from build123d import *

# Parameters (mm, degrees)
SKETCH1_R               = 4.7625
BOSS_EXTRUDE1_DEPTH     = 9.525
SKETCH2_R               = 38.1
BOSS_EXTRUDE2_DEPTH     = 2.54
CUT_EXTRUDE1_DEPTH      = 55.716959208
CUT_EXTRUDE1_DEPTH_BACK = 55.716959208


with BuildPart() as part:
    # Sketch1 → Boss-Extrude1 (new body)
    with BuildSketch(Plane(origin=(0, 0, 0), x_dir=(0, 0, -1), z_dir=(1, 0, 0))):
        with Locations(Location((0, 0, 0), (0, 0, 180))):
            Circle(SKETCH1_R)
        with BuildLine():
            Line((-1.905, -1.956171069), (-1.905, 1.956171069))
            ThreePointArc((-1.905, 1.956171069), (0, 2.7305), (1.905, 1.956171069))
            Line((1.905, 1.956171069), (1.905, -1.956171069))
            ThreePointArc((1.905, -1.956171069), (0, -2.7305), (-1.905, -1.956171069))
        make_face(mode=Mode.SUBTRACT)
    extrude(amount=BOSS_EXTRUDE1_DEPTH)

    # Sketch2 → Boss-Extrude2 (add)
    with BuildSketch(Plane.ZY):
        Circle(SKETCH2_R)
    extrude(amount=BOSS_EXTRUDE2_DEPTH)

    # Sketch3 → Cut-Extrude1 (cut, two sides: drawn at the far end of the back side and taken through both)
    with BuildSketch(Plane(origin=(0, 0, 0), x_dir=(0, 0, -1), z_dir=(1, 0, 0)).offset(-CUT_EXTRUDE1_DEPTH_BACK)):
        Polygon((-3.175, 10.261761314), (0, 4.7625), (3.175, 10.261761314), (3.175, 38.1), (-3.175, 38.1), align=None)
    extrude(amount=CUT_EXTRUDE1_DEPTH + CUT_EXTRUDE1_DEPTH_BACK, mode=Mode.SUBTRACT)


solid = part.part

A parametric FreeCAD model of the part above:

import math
import FreeCAD as App
import Part
import Sketcher
Q = App.Units.Quantity


def add_polygon(sketch, points):
    """Adds a closed chain of lines whose ends are joined by coincident constraints."""
    first, n = sketch.GeometryCount, len(points)
    for a, b in zip(points, points[1:] + points[:1]):
        sketch.addGeometry(Part.LineSegment(App.Vector(*a, 0), App.Vector(*b, 0)), False)
    for i in range(n):
        sketch.addConstraint(Sketcher.Constraint("Coincident", first + i, 2, first + (i + 1) % n, 1))

doc = App.newDocument("Part")
body = doc.addObject("PartDesign::Body", "Body")

# Sketch on YZ plane
sketch1 = doc.addObject("Sketcher::SketchObject", "Sketch")
body.addObject(sketch1)
sketch1.AttachmentSupport = (doc.YZ_Plane, [""])
sketch1.MapMode = "FlatFace"
sketch1.addGeometry([
    Part.Circle(App.Vector(0, 0, 0), App.Vector(0, 0, 1), 4.8),  # 0
    Part.ArcOfCircle(Part.Circle(App.Vector(0, 0, 0), App.Vector(0, 0, 1), 2.7), math.radians(136), math.radians(224)),  # 1
    Part.LineSegment(App.Vector(-2, 1.9, 0), App.Vector(2, 1.9, 0)),  # 2
    Part.ArcOfCircle(Part.Circle(App.Vector(0, 0, 0), App.Vector(0, 0, 1), 2.7), math.radians(-44), math.radians(44)),  # 3
    Part.LineSegment(App.Vector(2, -1.9, 0), App.Vector(-2, -1.9, 0)),  # 4
], False)
sketch1.addConstraint([
    Sketcher.Constraint("Coincident", 1, 1, 2, 1),
    Sketcher.Constraint("Coincident", 2, 2, 3, 2),
    Sketcher.Constraint("Coincident", 3, 1, 4, 1),
    Sketcher.Constraint("Coincident", 4, 2, 1, 2),
    Sketcher.Constraint("Horizontal", 2),
    Sketcher.Constraint("Horizontal", 4),
    Sketcher.Constraint("Coincident", 0, 3, -1, 1),
    Sketcher.Constraint("Coincident", 1, 3, -1, 1),
    Sketcher.Constraint("Coincident", 3, 3, -1, 1),
    Sketcher.Constraint("Equal", 1, 3),
    Sketcher.Constraint("Vertical", 2, 2, 3, 1),
    Sketcher.Constraint("Diameter", 0, Q("0.375 in")),
    Sketcher.Constraint("Radius", 1, Q("0.1075 in")),
    Sketcher.Constraint("DistanceY", 3, 1, 2, 2, Q("0.15 in")),
])
pad1 = doc.addObject("PartDesign::Pad", "Pad")
body.addObject(pad1)
pad1.Profile = sketch1
pad1.Length = Q("0.375 in")

# Sketch on YZ plane
sketch2 = doc.addObject("Sketcher::SketchObject", "Sketch001")
body.addObject(sketch2)
sketch2.AttachmentSupport = (doc.YZ_Plane, [""])
sketch2.MapMode = "FlatFace"
sketch2.addGeometry(Part.Circle(App.Vector(0, 0, 0), App.Vector(0, 0, 1), 38), False)
sketch2.addConstraint([
    Sketcher.Constraint("Coincident", 0, 3, -1, 1),
    Sketcher.Constraint("Diameter", 0, Q("3 in")),
])
pad2 = doc.addObject("PartDesign::Pad", "Pad001")
body.addObject(pad2)
pad2.Profile = sketch2
pad2.Length = Q("0.1 in")
pad2.Reversed = True

# Sketch on YZ plane
sketch3 = doc.addObject("Sketcher::SketchObject", "Sketch002")
body.addObject(sketch3)
sketch3.AttachmentSupport = (doc.YZ_Plane, [""])
sketch3.MapMode = "FlatFace"
add_polygon(sketch3, [(10, 3), (5, 0), (10, -3), (38, -3), (38, 3)])  # lines 0-4
sketch3.addConstraint([
    Sketcher.Constraint("Horizontal", 2),
    Sketcher.Constraint("Vertical", 3),
    Sketcher.Constraint("Horizontal", 4),
    Sketcher.Constraint("Symmetric", 1, 2, 4, 2, -1),
    Sketcher.Constraint("PointOnObject", 0, 2, -1),
    Sketcher.Constraint("Angle", 0, Q("-150 deg")),
    Sketcher.Constraint("DistanceY", 3, 1, 3, 2, Q("0.25 in")),
    Sketcher.Constraint("DistanceX", -1, 1, 2, 2, Q("1.5 in")),
    Sketcher.Constraint("DistanceX", -1, 1, 0, 2, Q("0.1875 in")),
])
pocket1 = doc.addObject("PartDesign::Pocket", "Pocket")
body.addObject(pocket1)
pocket1.Profile = sketch3
pocket1.Type = "ThroughAll"
pocket1.Midplane = True

doc.recompute()
